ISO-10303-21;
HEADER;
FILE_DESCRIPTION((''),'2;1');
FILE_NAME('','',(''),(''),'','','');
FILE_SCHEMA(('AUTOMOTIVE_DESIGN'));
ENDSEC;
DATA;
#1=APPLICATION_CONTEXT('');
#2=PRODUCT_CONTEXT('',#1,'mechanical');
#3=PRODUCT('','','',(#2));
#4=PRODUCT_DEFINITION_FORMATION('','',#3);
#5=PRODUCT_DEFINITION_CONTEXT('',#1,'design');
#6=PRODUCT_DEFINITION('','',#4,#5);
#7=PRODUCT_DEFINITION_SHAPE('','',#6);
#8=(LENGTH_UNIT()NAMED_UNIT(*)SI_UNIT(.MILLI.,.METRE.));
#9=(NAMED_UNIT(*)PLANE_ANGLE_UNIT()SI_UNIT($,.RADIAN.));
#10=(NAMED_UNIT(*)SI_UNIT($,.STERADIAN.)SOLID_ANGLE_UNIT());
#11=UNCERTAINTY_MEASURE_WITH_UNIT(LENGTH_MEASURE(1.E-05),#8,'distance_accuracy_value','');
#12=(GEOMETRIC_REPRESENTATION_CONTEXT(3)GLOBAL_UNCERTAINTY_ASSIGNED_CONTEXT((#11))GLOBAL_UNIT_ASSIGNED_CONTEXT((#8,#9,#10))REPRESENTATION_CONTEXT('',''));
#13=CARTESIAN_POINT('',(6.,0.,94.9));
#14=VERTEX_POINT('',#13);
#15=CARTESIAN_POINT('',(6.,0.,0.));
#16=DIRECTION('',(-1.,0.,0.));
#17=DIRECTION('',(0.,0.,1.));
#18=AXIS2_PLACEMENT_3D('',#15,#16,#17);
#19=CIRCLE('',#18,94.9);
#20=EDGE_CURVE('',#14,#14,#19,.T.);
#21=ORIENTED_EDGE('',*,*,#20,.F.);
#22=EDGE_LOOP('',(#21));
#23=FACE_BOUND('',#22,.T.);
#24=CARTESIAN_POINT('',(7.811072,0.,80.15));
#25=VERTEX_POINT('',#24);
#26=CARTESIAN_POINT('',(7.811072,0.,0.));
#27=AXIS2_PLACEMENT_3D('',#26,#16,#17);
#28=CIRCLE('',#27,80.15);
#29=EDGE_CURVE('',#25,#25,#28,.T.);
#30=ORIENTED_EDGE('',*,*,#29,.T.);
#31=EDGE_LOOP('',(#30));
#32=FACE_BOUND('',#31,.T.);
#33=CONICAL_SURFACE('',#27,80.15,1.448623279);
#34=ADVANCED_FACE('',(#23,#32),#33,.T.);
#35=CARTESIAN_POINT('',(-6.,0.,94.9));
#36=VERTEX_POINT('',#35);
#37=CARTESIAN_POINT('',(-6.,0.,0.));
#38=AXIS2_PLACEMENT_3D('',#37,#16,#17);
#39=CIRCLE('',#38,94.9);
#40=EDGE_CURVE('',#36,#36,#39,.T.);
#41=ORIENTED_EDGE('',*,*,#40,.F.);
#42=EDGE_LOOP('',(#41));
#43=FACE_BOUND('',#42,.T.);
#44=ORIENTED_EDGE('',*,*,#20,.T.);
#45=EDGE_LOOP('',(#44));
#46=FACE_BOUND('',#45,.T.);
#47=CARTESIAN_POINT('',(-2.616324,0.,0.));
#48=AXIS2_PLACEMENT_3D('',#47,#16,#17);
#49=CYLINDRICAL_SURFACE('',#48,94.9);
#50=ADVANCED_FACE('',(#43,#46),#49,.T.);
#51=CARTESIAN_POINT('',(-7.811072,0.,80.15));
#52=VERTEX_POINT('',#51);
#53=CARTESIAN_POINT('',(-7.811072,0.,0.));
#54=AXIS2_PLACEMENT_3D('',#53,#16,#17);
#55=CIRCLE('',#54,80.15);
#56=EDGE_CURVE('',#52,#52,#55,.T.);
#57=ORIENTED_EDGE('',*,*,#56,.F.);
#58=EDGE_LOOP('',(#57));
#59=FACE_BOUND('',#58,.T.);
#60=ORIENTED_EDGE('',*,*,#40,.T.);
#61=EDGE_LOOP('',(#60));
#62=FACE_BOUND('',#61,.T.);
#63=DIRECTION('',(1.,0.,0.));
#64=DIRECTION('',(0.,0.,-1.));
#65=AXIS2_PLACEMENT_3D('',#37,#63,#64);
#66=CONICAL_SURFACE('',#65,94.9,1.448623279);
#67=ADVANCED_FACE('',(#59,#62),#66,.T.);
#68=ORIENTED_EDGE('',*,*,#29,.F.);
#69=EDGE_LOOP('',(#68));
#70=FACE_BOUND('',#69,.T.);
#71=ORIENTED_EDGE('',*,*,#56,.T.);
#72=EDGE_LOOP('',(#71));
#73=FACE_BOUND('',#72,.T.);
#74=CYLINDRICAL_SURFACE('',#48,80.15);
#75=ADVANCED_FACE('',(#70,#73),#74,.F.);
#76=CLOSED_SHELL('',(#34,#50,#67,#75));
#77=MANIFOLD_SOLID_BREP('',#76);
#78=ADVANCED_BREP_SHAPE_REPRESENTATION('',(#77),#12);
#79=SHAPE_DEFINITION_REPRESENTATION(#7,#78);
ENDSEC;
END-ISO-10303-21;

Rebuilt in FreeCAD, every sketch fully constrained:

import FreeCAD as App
import Part
import Sketcher
from FreeCAD import Vector
Q = App.Units.Quantity


def add_polygon(sketch, points):
    """Adds a closed chain of lines whose ends are joined by coincident constraints."""
    first, n = sketch.GeometryCount, len(points)
    for a, b in zip(points, points[1:] + points[:1]):
        sketch.addGeometry(Part.LineSegment(App.Vector(*a, 0), App.Vector(*b, 0)), False)
    for i in range(n):
        sketch.addConstraint(Sketcher.Constraint("Coincident", first + i, 2, first + (i + 1) % n, 1))

doc = App.newDocument("Part")
params = doc.addObject("Spreadsheet::Sheet", "Params")
for row, (alias, value) in enumerate([
    ("sketch1_width", "12 mm"),
    ("revolution_angle", "360 deg"),
], start=1):
    params.set(f"A{row}", alias)
    params.set(f"B{row}", "=" + value)
    params.setAlias(f"B{row}", alias)

body = doc.addObject("PartDesign::Body", "Body")

sketch1 = body.newObject("Sketcher::SketchObject", "Sketch")
sketch1.AttachmentSupport = (doc.getObject("XY_Plane"), [""])
sketch1.MapMode = "FlatFace"
add_polygon(sketch1, [(-6, 95), (-8, 80), (8, 80), (6, 95)])
sketch1.addConstraint([
    Sketcher.Constraint("Horizontal", 1),
    Sketcher.Constraint("Horizontal", 3),
    Sketcher.Constraint("Equal", 0, 2),
    Sketcher.Constraint("DistanceX", 3, 2, 3, 1, Q("12 mm")),
    Sketcher.Constraint("Angle", 0, Q("-97 deg")),
    Sketcher.Constraint("DistanceX", -1, 1, 2, 2, Q("6 mm")),
    Sketcher.Constraint("DistanceY", -1, 1, 2, 2, Q("94.9 mm")),
    Sketcher.Constraint("DistanceY", -1, 1, 0, 2, Q("80.15 mm")),
])
sketch1.setExpression("Constraints[7]", "Params.sketch1_width")
revolution = body.newObject("PartDesign::Revolution", "Revolution")
revolution.Profile = sketch1
revolution.ReferenceAxis = (sketch1, ["H_Axis"])
revolution.setExpression("Angle", "Params.revolution_angle")

doc.recompute()
